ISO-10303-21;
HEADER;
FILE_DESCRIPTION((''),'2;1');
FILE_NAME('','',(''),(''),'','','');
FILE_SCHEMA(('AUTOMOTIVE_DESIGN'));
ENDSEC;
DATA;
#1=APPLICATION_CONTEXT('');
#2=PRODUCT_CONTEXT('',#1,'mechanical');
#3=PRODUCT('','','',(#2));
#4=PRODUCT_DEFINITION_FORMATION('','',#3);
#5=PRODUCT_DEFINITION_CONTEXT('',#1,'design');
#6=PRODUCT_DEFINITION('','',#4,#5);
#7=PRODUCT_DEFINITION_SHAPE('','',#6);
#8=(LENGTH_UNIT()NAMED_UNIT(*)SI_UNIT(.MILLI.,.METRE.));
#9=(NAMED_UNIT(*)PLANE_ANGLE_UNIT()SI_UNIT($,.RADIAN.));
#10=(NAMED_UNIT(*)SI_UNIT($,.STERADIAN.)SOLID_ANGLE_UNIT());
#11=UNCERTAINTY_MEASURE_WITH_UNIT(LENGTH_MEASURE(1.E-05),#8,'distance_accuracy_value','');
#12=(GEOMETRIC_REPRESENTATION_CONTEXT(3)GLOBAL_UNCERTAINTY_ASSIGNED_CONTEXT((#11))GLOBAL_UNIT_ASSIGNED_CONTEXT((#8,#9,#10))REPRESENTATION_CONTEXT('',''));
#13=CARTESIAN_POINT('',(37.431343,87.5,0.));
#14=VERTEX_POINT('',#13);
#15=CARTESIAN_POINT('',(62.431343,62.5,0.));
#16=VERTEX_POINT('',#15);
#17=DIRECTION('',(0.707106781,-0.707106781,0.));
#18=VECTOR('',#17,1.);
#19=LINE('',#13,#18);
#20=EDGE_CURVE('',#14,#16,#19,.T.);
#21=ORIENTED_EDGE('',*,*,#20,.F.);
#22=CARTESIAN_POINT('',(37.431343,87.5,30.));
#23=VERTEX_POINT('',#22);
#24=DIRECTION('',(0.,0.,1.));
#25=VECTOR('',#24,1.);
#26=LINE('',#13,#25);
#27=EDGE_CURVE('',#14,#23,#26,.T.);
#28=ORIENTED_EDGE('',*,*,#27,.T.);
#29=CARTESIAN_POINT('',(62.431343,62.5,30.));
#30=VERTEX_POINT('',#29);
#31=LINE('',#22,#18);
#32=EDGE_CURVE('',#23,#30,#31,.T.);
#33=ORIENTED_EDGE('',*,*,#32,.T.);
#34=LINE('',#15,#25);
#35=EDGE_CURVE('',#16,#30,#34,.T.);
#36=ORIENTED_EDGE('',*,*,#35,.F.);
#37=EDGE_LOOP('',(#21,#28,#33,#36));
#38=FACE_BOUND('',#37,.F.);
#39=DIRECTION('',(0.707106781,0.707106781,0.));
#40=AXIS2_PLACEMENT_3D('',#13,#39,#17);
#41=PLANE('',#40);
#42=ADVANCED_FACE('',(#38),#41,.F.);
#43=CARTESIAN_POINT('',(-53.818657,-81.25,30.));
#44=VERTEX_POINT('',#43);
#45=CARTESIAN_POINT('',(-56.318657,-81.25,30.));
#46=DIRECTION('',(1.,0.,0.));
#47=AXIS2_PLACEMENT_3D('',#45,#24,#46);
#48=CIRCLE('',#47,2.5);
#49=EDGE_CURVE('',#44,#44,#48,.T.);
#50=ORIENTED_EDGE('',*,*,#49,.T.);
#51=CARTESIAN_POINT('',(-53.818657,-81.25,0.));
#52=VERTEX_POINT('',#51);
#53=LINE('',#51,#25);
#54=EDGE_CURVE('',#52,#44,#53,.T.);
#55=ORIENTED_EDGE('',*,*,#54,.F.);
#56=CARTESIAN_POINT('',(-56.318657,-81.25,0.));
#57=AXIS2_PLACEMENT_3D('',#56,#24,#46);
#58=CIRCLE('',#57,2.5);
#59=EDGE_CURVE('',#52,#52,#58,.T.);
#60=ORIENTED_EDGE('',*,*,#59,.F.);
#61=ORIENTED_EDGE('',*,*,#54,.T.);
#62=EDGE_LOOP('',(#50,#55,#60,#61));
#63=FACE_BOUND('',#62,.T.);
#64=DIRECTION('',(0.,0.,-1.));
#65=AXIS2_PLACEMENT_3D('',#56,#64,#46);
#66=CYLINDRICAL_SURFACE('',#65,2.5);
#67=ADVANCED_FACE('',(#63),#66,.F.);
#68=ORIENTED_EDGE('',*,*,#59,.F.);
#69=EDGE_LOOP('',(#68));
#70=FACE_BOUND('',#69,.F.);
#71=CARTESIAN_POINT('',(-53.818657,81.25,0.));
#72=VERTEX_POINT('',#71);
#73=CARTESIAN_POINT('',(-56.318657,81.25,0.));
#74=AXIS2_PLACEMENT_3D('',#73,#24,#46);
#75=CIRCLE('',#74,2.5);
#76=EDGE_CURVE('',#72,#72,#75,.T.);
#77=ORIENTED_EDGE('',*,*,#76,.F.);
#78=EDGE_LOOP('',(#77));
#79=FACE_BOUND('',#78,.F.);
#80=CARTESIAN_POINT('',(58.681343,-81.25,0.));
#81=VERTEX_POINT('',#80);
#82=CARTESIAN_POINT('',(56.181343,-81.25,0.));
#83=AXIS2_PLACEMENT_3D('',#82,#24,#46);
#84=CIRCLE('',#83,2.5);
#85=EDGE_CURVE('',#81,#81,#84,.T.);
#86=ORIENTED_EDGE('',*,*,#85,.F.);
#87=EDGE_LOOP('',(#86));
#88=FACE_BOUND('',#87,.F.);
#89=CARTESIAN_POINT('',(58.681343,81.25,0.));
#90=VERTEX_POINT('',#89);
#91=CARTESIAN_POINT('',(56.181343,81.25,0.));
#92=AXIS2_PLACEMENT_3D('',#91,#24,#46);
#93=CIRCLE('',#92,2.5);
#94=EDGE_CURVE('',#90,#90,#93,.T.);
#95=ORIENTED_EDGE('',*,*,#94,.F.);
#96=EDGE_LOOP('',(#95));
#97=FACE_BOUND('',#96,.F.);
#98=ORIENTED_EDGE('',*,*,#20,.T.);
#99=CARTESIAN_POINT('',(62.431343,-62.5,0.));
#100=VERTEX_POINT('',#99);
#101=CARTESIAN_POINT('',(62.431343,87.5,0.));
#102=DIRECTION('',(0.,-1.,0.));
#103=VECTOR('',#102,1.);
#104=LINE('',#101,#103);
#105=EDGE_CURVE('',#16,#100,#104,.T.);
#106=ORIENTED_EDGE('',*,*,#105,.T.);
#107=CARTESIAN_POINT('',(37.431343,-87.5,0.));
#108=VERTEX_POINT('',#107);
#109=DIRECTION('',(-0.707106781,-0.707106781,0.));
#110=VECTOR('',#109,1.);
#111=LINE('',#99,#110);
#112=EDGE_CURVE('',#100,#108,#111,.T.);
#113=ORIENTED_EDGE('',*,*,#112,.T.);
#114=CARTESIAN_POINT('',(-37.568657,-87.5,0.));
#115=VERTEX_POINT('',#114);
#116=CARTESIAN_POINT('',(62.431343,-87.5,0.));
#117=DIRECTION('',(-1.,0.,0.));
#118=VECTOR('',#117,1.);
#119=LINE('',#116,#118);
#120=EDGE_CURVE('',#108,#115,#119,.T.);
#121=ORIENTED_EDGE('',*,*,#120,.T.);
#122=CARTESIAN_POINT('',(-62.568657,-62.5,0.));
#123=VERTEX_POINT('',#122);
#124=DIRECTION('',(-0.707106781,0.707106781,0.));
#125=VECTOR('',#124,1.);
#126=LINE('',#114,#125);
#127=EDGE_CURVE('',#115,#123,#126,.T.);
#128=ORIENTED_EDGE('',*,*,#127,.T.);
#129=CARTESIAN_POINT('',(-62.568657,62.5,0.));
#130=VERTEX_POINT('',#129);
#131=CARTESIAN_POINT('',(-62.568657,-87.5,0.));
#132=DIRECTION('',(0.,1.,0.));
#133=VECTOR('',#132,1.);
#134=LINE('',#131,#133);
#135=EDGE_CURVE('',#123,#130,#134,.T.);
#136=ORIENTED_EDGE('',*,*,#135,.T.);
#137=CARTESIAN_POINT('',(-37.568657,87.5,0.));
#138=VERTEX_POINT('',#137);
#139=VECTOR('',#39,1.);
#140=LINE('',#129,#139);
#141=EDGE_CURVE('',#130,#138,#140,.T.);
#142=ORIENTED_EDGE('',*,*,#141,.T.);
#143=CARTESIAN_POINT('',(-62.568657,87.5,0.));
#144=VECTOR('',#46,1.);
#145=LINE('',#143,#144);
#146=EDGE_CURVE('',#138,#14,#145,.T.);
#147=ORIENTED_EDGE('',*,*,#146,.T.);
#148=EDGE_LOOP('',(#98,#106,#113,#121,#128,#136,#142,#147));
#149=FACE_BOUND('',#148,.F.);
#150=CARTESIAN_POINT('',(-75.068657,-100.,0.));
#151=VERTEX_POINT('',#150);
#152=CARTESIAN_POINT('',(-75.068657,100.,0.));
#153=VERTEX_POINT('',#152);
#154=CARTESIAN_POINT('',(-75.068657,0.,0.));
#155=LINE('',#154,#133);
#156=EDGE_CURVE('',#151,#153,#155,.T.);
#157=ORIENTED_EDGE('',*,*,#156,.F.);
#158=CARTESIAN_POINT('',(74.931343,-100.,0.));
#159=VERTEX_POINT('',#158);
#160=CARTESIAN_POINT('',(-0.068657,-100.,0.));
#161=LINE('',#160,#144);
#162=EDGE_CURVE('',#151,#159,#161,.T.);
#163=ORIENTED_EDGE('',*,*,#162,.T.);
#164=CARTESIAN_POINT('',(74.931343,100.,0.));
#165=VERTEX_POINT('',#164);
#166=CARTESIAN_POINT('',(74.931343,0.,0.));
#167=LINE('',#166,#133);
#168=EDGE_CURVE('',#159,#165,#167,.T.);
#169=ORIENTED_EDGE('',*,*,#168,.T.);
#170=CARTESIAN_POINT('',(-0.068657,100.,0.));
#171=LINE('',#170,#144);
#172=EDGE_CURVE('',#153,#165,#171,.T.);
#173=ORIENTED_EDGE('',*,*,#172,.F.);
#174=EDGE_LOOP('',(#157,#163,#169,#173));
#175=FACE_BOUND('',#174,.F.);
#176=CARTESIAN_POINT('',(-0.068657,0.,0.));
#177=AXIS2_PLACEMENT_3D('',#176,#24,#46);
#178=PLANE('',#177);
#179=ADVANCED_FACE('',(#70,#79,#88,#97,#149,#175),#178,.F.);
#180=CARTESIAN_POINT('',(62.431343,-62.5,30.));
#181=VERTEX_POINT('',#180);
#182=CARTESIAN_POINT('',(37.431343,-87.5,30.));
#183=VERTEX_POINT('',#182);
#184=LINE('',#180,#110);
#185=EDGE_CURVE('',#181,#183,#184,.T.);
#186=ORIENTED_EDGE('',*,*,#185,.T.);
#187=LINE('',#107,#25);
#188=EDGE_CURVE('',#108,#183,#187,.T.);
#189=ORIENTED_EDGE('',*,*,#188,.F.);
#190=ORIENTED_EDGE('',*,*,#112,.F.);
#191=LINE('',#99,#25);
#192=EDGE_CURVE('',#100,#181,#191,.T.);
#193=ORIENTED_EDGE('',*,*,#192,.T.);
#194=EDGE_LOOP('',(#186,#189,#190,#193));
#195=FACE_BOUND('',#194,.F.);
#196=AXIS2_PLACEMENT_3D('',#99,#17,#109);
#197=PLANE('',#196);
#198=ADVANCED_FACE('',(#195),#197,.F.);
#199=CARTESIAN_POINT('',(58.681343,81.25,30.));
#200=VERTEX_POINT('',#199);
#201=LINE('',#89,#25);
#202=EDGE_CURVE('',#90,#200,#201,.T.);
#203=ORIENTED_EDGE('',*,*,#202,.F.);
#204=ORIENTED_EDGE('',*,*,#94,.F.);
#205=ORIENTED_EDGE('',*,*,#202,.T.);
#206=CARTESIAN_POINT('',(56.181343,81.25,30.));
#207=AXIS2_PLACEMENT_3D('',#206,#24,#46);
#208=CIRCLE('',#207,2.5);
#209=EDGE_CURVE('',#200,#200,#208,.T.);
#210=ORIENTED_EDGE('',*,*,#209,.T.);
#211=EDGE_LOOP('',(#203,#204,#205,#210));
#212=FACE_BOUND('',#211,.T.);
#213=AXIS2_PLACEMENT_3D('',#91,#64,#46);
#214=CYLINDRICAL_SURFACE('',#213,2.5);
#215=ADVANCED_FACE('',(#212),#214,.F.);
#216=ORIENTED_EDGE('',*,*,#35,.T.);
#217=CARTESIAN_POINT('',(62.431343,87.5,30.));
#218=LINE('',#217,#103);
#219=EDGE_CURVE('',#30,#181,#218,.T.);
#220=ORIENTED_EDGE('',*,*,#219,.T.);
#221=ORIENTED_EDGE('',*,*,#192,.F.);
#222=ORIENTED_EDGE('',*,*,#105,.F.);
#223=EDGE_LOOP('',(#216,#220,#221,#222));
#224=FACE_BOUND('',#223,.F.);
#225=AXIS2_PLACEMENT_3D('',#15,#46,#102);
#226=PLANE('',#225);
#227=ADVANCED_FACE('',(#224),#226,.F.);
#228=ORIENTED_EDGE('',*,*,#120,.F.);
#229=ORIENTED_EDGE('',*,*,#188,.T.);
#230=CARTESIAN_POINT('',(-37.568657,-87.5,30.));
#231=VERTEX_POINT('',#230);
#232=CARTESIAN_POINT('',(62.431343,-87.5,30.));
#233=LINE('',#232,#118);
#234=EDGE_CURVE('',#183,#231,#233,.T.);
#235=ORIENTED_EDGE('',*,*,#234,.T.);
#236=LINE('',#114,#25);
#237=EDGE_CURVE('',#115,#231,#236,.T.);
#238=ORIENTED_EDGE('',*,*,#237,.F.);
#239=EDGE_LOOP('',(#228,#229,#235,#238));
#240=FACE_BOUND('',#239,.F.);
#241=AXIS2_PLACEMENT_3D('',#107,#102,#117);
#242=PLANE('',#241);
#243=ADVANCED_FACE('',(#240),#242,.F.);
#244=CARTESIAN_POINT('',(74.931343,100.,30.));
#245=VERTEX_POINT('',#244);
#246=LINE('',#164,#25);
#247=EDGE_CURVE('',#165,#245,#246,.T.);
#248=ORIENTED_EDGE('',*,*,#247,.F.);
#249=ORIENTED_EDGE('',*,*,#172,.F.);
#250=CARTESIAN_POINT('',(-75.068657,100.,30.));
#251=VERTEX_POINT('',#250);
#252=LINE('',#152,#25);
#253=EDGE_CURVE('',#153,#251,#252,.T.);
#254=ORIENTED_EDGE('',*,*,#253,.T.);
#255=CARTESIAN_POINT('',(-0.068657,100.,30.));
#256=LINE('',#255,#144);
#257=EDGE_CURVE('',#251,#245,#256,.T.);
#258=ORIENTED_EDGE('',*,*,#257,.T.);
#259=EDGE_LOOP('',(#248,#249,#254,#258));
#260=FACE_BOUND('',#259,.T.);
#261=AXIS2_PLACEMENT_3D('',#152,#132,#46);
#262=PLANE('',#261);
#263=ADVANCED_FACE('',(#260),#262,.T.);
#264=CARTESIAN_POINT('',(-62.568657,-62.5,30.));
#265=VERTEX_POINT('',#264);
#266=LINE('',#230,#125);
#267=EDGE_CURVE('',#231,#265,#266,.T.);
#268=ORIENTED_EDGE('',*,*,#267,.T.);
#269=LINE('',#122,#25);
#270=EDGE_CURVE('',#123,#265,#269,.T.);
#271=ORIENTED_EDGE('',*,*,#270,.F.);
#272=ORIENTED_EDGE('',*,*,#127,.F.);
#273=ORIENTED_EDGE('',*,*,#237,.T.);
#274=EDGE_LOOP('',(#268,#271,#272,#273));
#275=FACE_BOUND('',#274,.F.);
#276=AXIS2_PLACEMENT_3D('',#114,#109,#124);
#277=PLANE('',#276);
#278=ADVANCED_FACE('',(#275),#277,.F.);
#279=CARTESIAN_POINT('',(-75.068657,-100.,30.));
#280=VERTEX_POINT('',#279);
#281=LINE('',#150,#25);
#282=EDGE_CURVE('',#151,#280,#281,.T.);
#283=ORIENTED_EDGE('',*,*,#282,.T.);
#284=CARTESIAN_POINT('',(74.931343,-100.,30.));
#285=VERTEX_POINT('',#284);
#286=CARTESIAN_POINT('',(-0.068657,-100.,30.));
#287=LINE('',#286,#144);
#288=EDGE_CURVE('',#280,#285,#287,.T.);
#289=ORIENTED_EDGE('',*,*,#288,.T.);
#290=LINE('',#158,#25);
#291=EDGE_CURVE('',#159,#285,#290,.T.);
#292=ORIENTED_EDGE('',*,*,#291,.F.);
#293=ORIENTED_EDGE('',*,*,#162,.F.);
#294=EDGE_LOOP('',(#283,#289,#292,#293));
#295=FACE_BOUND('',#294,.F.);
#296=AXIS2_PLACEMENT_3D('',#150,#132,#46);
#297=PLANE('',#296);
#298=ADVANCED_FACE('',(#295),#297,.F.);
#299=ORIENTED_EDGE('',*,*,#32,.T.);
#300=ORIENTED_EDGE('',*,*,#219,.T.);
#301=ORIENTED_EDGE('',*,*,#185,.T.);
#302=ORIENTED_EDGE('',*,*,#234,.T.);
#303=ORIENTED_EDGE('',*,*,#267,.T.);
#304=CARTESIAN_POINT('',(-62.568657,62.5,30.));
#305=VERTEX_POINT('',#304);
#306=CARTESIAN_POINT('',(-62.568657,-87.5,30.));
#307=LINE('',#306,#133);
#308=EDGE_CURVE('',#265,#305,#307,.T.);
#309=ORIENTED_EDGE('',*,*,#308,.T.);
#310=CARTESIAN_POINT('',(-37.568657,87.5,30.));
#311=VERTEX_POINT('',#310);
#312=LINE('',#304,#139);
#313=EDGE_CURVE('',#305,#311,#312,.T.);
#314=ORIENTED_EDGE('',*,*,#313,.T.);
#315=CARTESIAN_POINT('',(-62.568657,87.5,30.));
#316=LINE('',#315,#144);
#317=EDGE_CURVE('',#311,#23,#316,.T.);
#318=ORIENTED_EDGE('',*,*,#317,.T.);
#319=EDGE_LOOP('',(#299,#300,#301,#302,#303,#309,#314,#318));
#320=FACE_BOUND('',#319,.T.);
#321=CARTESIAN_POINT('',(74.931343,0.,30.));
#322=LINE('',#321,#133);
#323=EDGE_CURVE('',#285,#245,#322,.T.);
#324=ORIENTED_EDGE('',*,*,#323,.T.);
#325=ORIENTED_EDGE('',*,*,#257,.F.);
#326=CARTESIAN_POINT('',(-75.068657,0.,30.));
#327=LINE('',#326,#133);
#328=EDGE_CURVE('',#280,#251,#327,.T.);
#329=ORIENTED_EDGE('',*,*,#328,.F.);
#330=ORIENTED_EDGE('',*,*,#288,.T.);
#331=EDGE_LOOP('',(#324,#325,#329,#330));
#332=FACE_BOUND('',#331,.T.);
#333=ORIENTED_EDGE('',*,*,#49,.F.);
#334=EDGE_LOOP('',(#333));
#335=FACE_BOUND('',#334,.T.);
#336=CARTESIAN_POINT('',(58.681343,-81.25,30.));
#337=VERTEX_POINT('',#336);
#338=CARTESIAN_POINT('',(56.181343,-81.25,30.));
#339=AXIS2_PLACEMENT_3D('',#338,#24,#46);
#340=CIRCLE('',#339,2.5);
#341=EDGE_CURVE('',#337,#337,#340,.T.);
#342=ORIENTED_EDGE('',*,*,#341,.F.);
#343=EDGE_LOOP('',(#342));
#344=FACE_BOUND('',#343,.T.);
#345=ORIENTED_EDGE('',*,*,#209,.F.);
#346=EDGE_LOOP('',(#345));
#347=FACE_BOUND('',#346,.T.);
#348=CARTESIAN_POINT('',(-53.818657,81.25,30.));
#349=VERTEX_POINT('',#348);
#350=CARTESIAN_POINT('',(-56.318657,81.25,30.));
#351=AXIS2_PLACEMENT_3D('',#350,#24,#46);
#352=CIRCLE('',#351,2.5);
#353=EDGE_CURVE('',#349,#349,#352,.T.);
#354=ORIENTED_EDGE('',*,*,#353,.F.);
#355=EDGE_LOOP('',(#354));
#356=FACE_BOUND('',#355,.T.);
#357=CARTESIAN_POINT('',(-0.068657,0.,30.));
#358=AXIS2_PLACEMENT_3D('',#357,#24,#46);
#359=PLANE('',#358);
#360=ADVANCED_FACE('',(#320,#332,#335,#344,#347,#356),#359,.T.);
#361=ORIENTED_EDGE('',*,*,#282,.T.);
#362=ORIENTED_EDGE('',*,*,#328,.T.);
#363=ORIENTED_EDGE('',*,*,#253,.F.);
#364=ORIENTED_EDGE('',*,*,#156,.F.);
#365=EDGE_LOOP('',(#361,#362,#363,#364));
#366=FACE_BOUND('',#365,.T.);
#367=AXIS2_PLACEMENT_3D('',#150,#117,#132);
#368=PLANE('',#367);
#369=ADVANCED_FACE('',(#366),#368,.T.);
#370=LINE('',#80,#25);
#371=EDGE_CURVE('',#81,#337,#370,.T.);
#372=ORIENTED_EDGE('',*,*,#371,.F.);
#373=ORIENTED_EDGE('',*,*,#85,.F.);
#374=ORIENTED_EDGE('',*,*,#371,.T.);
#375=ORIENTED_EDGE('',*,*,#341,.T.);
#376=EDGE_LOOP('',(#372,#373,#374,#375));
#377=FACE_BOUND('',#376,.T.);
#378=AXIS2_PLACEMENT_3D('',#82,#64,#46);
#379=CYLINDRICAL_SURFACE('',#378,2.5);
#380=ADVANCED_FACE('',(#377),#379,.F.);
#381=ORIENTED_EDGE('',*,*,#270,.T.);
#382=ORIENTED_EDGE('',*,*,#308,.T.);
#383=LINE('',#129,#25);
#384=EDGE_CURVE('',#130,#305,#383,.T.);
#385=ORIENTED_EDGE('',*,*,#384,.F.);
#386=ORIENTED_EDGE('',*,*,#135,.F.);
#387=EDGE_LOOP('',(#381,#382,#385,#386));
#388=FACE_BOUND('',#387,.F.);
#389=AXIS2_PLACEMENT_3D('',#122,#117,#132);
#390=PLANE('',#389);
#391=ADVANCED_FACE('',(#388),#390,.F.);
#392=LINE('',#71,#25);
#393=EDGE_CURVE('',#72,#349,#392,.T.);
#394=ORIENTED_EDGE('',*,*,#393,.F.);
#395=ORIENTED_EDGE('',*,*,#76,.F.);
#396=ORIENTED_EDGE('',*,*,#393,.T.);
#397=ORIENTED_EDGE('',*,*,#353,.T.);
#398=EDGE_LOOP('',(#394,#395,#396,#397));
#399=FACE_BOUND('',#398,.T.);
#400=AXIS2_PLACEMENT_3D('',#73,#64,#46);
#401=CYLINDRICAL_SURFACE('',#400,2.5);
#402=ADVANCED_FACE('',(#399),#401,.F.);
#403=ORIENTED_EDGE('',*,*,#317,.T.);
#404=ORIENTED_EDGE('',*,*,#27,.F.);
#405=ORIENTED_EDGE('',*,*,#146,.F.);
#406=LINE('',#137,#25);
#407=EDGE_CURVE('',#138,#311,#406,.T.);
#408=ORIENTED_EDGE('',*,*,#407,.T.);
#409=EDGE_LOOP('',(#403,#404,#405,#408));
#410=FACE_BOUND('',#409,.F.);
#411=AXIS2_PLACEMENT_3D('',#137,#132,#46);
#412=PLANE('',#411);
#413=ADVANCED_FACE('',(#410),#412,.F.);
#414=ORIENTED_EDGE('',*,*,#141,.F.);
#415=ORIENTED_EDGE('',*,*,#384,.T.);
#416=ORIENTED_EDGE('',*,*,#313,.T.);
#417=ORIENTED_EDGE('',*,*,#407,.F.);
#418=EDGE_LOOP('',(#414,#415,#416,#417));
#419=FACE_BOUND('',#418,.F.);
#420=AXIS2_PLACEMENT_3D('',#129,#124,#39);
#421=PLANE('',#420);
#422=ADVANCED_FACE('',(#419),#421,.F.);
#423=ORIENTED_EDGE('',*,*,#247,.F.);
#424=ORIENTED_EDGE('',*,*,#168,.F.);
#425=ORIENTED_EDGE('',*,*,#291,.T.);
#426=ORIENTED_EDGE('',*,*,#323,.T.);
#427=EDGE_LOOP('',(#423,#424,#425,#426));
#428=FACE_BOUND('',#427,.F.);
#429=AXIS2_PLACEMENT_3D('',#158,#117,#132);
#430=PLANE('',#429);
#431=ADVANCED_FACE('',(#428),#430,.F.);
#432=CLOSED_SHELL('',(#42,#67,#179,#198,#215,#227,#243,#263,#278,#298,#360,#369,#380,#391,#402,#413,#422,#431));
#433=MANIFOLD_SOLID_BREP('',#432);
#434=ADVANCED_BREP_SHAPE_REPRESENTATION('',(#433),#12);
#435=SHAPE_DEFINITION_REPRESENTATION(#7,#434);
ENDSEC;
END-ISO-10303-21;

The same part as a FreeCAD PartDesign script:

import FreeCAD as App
import Part
import Sketcher

V = App.Vector

doc = App.newDocument("Part")
body = doc.addObject("PartDesign::Body", "Body")

# Sketch on XY plane
sketch1 = body.newObject("Sketcher::SketchObject", "Sketch")
sketch1.AttachmentSupport = (doc.getObject("XY_Plane"), [""])
sketch1.MapMode = "FlatFace"
sketch1.addGeometry(Part.LineSegment(V(-75.1, 100, 0), V(-75.1, -100, 0)), False)
sketch1.addGeometry(Part.LineSegment(V(-75.1, -100, 0), V(74.9, -100, 0)), False)
sketch1.addGeometry(Part.LineSegment(V(74.9, -100, 0), V(74.9, 100, 0)), False)
sketch1.addGeometry(Part.LineSegment(V(74.9, 100, 0), V(-75.1, 100, 0)), False)
sketch1.addGeometry(Part.Circle(V(-56.3, -81.2, 0), V(0, 0, 1), 2.5), False)
sketch1.addGeometry(Part.Circle(V(56.2, -81.2, 0), V(0, 0, 1), 2.5), False)
sketch1.addGeometry(Part.Circle(V(-56.3, 81.2, 0), V(0, 0, 1), 2.5), False)
sketch1.addGeometry(Part.LineSegment(V(-62.6, -62.5, 0), V(-62.6, 62.5, 0)), False)
sketch1.addGeometry(Part.LineSegment(V(-62.6, 62.5, 0), V(-37.6, 87.5, 0)), False)
sketch1.addGeometry(Part.LineSegment(V(-37.6, 87.5, 0), V(37.4, 87.5, 0)), False)
sketch1.addGeometry(Part.LineSegment(V(37.4, 87.5, 0), V(62.4, 62.5, 0)), False)
sketch1.addGeometry(Part.LineSegment(V(62.4, 62.5, 0), V(62.4, -62.5, 0)), False)
sketch1.addGeometry(Part.LineSegment(V(62.4, -62.5, 0), V(37.4, -87.5, 0)), False)
sketch1.addGeometry(Part.LineSegment(V(37.4, -87.5, 0), V(-37.6, -87.5, 0)), False)
sketch1.addGeometry(Part.LineSegment(V(-37.6, -87.5, 0), V(-62.6, -62.5, 0)), False)
sketch1.addGeometry(Part.Circle(V(56.2, 81.2, 0), V(0, 0, 1), 2.5), False)
sketch1.addConstraint(Sketcher.Constraint("Coincident", 0, 2, 1, 1))
sketch1.addConstraint(Sketcher.Constraint("Coincident", 1, 2, 2, 1))
sketch1.addConstraint(Sketcher.Constraint("Coincident", 2, 2, 3, 1))
sketch1.addConstraint(Sketcher.Constraint("Coincident", 3, 2, 0, 1))
sketch1.addConstraint(Sketcher.Constraint("Coincident", 7, 2, 8, 1))
sketch1.addConstraint(Sketcher.Constraint("Coincident", 8, 2, 9, 1))
sketch1.addConstraint(Sketcher.Constraint("Coincident", 9, 2, 10, 1))
sketch1.addConstraint(Sketcher.Constraint("Coincident", 10, 2, 11, 1))
sketch1.addConstraint(Sketcher.Constraint("Coincident", 11, 2, 12, 1))
sketch1.addConstraint(Sketcher.Constraint("Coincident", 12, 2, 13, 1))
sketch1.addConstraint(Sketcher.Constraint("Coincident", 13, 2, 14, 1))
sketch1.addConstraint(Sketcher.Constraint("Coincident", 14, 2, 7, 1))
sketch1.addConstraint(Sketcher.Constraint("Vertical", 0))
sketch1.addConstraint(Sketcher.Constraint("Horizontal", 1))
sketch1.addConstraint(Sketcher.Constraint("Vertical", 2))
sketch1.addConstraint(Sketcher.Constraint("Horizontal", 3))
sketch1.addConstraint(Sketcher.Constraint("Vertical", 7))
sketch1.addConstraint(Sketcher.Constraint("Horizontal", 9))
sketch1.addConstraint(Sketcher.Constraint("Vertical", 11))
sketch1.addConstraint(Sketcher.Constraint("Horizontal", 13))
sketch1.addConstraint(Sketcher.Constraint("Equal", 4, 5))
sketch1.addConstraint(Sketcher.Constraint("Equal", 5, 6))
sketch1.addConstraint(Sketcher.Constraint("Equal", 6, 15))
sketch1.addConstraint(Sketcher.Constraint("Symmetric", 4, 3, 6, 3, -1))
sketch1.addConstraint(Sketcher.Constraint("Symmetric", 5, 3, 15, 3, -1))
sketch1.addConstraint(Sketcher.Constraint("Symmetric", 9, 2, 12, 2, -1))
sketch1.addConstraint(Sketcher.Constraint("Perpendicular", 8, 10))
sketch1.addConstraint(Sketcher.Constraint("Perpendicular", 10, 12))
sketch1.addConstraint(Sketcher.Constraint("Perpendicular", 12, 14))
sketch1.addConstraint(Sketcher.Constraint("Horizontal", 4, 3, 5, 3))
sketch1.addConstraint(Sketcher.Constraint("Horizontal", 7, 2, 10, 2))
sketch1.addConstraint(Sketcher.Constraint("Horizontal", 11, 2, 14, 2))
sketch1.addConstraint(Sketcher.Constraint("Vertical", 8, 2, 13, 2))
sketch1.addConstraint(Sketcher.Constraint("Diameter", 4, 5.0))
sketch1.addConstraint(Sketcher.Constraint("DistanceX", 1, 1, 1, 2, 150.0))
sketch1.addConstraint(Sketcher.Constraint("DistanceX", 9, 1, 9, 2, 75.0))
sketch1.addConstraint(Sketcher.Constraint("DistanceY", 0, 2, 0, 1, 200.0))
sketch1.addConstraint(Sketcher.Constraint("DistanceY", 7, 1, 7, 2, 125.0))
sketch1.addConstraint(Sketcher.Constraint("DistanceY", 0, 2, -1, 1, 100.0))
sketch1.addConstraint(Sketcher.Constraint("DistanceX", 7, 2, 8, 2, 25.0))
sketch1.addConstraint(Sketcher.Constraint("DistanceX", 4, 3, 5, 3, 112.5))
sketch1.addConstraint(Sketcher.Constraint("DistanceY", 4, 3, 6, 3, 162.5))
sketch1.addConstraint(Sketcher.Constraint("DistanceX", 3, 2, 7, 2, 12.5))
sketch1.addConstraint(Sketcher.Constraint("DistanceX", 0, 2, 4, 3, 18.75))
sketch1.addConstraint(Sketcher.Constraint("DistanceX", 4, 3, -1, 1, 56.318657))
pad1 = body.newObject("PartDesign::Pad", "Pad")
pad1.Profile = sketch1
pad1.Length = 30

doc.recompute()
